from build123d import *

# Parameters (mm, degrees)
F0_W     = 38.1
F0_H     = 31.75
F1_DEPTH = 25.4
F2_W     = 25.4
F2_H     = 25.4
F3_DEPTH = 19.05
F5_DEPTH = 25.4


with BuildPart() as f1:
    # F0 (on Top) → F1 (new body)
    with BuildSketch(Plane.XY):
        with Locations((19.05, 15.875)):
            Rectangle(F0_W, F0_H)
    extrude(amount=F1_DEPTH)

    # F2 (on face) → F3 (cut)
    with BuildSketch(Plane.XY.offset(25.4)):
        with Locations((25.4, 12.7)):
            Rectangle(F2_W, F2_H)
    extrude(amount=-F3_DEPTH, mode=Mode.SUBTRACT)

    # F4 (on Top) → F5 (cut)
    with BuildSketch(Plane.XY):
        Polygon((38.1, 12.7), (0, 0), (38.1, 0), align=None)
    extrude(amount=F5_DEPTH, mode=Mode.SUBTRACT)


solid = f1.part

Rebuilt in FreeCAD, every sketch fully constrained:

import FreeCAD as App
import Part
import Sketcher

V = App.Vector
Q = App.Units.Quantity

doc = App.newDocument("Part")
body = doc.addObject("PartDesign::Body", "Body")

# Sketch on XY plane
sketch1 = body.newObject("Sketcher::SketchObject", "Sketch")
sketch1.AttachmentSupport = (doc.getObject("XY_Plane"), [""])
sketch1.MapMode = "FlatFace"
sketch1.addGeometry([
    Part.LineSegment(V(0, 31.75, 0), V(0, 0, 0)),
    Part.LineSegment(V(0, 0, 0), V(38.1, 0, 0)),
    Part.LineSegment(V(38.1, 0, 0), V(38.1, 31.75, 0)),
    Part.LineSegment(V(38.1, 31.75, 0), V(0, 31.75, 0)),
], False)
sketch1.addConstraint([
    Sketcher.Constraint("Coincident", 0, 2, 1, 1),
    Sketcher.Constraint("Coincident", 1, 2, 2, 1),
    Sketcher.Constraint("Coincident", 2, 2, 3, 1),
    Sketcher.Constraint("Coincident", 3, 2, 0, 1),
    Sketcher.Constraint("Vertical", 0),
    Sketcher.Constraint("Horizontal", 1),
    Sketcher.Constraint("Vertical", 2),
    Sketcher.Constraint("Horizontal", 3),
    Sketcher.Constraint("Coincident", 0, 2, -1, 1),
    Sketcher.Constraint("DistanceX", 1, 1, 1, 2, Q("1.5 in")),
    Sketcher.Constraint("DistanceY", 0, 2, 0, 1, Q("1.25 in")),
])
pad1 = body.newObject("PartDesign::Pad", "Pad")
pad1.Profile = sketch1
pad1.Length = Q("1 in")

# Sketch on XY plane
sketch2 = body.newObject("Sketcher::SketchObject", "Sketch001")
sketch2.AttachmentSupport = (doc.getObject("XY_Plane"), [""])
sketch2.MapMode = "FlatFace"
sketch2.AttachmentOffset = App.Placement(V(0, 0, 1 * 25.4), App.Rotation())
sketch2.addGeometry([
    Part.LineSegment(V(12.7, 25.4, 0), V(12.7, 0, 0)),
    Part.LineSegment(V(12.7, 0, 0), V(38.1, 0, 0)),
    Part.LineSegment(V(38.1, 0, 0), V(38.1, 25.4, 0)),
    Part.LineSegment(V(38.1, 25.4, 0), V(12.7, 25.4, 0)),
], False)
sketch2.addConstraint([
    Sketcher.Constraint("Coincident", 0, 2, 1, 1),
    Sketcher.Constraint("Coincident", 1, 2, 2, 1),
    Sketcher.Constraint("Coincident", 2, 2, 3, 1),
    Sketcher.Constraint("Coincident", 3, 2, 0, 1),
    Sketcher.Constraint("Vertical", 0),
    Sketcher.Constraint("Horizontal", 1),
    Sketcher.Constraint("Vertical", 2),
    Sketcher.Constraint("Horizontal", 3),
    Sketcher.Constraint("PointOnObject", 0, 2, -1),
    Sketcher.Constraint("Equal", 3, 0),
    Sketcher.Constraint("DistanceX", 1, 1, 1, 2, Q("1 in")),
    Sketcher.Constraint("DistanceX", -1, 1, 0, 2, Q("0.5 in")),
])
pocket1 = body.newObject("PartDesign::Pocket", "Pocket")
pocket1.Profile = sketch2
pocket1.Length = Q("0.75 in")

# Sketch on XY plane
sketch3 = body.newObject("Sketcher::SketchObject", "Sketch002")
sketch3.AttachmentSupport = (doc.getObject("XY_Plane"), [""])
sketch3.MapMode = "FlatFace"
sketch3.addGeometry([
    Part.LineSegment(V(38.1, 12.7, 0), V(0, 0, 0)),
    Part.LineSegment(V(0, 0, 0), V(38.1, 0, 0)),
    Part.LineSegment(V(38.1, 0, 0), V(38.1, 12.7, 0)),
], False)
sketch3.addConstraint([
    Sketcher.Constraint("Coincident", 0, 2, 1, 1),
    Sketcher.Constraint("Coincident", 1, 2, 2, 1),
    Sketcher.Constraint("Coincident", 2, 2, 0, 1),
    Sketcher.Constraint("Horizontal", 1),
    Sketcher.Constraint("Vertical", 2),
    Sketcher.Constraint("Coincident", 0, 2, -1, 1),
    Sketcher.Constraint("DistanceX", 1, 1, 1, 2, Q("1.5 in")),
    Sketcher.Constraint("DistanceY", 2, 1, 2, 2, Q("0.5 in")),
])
pocket2 = body.newObject("PartDesign::Pocket", "Pocket001")
pocket2.Profile = sketch3
pocket2.Length = Q("1 in")
pocket2.Reversed = True

doc.recompute()
